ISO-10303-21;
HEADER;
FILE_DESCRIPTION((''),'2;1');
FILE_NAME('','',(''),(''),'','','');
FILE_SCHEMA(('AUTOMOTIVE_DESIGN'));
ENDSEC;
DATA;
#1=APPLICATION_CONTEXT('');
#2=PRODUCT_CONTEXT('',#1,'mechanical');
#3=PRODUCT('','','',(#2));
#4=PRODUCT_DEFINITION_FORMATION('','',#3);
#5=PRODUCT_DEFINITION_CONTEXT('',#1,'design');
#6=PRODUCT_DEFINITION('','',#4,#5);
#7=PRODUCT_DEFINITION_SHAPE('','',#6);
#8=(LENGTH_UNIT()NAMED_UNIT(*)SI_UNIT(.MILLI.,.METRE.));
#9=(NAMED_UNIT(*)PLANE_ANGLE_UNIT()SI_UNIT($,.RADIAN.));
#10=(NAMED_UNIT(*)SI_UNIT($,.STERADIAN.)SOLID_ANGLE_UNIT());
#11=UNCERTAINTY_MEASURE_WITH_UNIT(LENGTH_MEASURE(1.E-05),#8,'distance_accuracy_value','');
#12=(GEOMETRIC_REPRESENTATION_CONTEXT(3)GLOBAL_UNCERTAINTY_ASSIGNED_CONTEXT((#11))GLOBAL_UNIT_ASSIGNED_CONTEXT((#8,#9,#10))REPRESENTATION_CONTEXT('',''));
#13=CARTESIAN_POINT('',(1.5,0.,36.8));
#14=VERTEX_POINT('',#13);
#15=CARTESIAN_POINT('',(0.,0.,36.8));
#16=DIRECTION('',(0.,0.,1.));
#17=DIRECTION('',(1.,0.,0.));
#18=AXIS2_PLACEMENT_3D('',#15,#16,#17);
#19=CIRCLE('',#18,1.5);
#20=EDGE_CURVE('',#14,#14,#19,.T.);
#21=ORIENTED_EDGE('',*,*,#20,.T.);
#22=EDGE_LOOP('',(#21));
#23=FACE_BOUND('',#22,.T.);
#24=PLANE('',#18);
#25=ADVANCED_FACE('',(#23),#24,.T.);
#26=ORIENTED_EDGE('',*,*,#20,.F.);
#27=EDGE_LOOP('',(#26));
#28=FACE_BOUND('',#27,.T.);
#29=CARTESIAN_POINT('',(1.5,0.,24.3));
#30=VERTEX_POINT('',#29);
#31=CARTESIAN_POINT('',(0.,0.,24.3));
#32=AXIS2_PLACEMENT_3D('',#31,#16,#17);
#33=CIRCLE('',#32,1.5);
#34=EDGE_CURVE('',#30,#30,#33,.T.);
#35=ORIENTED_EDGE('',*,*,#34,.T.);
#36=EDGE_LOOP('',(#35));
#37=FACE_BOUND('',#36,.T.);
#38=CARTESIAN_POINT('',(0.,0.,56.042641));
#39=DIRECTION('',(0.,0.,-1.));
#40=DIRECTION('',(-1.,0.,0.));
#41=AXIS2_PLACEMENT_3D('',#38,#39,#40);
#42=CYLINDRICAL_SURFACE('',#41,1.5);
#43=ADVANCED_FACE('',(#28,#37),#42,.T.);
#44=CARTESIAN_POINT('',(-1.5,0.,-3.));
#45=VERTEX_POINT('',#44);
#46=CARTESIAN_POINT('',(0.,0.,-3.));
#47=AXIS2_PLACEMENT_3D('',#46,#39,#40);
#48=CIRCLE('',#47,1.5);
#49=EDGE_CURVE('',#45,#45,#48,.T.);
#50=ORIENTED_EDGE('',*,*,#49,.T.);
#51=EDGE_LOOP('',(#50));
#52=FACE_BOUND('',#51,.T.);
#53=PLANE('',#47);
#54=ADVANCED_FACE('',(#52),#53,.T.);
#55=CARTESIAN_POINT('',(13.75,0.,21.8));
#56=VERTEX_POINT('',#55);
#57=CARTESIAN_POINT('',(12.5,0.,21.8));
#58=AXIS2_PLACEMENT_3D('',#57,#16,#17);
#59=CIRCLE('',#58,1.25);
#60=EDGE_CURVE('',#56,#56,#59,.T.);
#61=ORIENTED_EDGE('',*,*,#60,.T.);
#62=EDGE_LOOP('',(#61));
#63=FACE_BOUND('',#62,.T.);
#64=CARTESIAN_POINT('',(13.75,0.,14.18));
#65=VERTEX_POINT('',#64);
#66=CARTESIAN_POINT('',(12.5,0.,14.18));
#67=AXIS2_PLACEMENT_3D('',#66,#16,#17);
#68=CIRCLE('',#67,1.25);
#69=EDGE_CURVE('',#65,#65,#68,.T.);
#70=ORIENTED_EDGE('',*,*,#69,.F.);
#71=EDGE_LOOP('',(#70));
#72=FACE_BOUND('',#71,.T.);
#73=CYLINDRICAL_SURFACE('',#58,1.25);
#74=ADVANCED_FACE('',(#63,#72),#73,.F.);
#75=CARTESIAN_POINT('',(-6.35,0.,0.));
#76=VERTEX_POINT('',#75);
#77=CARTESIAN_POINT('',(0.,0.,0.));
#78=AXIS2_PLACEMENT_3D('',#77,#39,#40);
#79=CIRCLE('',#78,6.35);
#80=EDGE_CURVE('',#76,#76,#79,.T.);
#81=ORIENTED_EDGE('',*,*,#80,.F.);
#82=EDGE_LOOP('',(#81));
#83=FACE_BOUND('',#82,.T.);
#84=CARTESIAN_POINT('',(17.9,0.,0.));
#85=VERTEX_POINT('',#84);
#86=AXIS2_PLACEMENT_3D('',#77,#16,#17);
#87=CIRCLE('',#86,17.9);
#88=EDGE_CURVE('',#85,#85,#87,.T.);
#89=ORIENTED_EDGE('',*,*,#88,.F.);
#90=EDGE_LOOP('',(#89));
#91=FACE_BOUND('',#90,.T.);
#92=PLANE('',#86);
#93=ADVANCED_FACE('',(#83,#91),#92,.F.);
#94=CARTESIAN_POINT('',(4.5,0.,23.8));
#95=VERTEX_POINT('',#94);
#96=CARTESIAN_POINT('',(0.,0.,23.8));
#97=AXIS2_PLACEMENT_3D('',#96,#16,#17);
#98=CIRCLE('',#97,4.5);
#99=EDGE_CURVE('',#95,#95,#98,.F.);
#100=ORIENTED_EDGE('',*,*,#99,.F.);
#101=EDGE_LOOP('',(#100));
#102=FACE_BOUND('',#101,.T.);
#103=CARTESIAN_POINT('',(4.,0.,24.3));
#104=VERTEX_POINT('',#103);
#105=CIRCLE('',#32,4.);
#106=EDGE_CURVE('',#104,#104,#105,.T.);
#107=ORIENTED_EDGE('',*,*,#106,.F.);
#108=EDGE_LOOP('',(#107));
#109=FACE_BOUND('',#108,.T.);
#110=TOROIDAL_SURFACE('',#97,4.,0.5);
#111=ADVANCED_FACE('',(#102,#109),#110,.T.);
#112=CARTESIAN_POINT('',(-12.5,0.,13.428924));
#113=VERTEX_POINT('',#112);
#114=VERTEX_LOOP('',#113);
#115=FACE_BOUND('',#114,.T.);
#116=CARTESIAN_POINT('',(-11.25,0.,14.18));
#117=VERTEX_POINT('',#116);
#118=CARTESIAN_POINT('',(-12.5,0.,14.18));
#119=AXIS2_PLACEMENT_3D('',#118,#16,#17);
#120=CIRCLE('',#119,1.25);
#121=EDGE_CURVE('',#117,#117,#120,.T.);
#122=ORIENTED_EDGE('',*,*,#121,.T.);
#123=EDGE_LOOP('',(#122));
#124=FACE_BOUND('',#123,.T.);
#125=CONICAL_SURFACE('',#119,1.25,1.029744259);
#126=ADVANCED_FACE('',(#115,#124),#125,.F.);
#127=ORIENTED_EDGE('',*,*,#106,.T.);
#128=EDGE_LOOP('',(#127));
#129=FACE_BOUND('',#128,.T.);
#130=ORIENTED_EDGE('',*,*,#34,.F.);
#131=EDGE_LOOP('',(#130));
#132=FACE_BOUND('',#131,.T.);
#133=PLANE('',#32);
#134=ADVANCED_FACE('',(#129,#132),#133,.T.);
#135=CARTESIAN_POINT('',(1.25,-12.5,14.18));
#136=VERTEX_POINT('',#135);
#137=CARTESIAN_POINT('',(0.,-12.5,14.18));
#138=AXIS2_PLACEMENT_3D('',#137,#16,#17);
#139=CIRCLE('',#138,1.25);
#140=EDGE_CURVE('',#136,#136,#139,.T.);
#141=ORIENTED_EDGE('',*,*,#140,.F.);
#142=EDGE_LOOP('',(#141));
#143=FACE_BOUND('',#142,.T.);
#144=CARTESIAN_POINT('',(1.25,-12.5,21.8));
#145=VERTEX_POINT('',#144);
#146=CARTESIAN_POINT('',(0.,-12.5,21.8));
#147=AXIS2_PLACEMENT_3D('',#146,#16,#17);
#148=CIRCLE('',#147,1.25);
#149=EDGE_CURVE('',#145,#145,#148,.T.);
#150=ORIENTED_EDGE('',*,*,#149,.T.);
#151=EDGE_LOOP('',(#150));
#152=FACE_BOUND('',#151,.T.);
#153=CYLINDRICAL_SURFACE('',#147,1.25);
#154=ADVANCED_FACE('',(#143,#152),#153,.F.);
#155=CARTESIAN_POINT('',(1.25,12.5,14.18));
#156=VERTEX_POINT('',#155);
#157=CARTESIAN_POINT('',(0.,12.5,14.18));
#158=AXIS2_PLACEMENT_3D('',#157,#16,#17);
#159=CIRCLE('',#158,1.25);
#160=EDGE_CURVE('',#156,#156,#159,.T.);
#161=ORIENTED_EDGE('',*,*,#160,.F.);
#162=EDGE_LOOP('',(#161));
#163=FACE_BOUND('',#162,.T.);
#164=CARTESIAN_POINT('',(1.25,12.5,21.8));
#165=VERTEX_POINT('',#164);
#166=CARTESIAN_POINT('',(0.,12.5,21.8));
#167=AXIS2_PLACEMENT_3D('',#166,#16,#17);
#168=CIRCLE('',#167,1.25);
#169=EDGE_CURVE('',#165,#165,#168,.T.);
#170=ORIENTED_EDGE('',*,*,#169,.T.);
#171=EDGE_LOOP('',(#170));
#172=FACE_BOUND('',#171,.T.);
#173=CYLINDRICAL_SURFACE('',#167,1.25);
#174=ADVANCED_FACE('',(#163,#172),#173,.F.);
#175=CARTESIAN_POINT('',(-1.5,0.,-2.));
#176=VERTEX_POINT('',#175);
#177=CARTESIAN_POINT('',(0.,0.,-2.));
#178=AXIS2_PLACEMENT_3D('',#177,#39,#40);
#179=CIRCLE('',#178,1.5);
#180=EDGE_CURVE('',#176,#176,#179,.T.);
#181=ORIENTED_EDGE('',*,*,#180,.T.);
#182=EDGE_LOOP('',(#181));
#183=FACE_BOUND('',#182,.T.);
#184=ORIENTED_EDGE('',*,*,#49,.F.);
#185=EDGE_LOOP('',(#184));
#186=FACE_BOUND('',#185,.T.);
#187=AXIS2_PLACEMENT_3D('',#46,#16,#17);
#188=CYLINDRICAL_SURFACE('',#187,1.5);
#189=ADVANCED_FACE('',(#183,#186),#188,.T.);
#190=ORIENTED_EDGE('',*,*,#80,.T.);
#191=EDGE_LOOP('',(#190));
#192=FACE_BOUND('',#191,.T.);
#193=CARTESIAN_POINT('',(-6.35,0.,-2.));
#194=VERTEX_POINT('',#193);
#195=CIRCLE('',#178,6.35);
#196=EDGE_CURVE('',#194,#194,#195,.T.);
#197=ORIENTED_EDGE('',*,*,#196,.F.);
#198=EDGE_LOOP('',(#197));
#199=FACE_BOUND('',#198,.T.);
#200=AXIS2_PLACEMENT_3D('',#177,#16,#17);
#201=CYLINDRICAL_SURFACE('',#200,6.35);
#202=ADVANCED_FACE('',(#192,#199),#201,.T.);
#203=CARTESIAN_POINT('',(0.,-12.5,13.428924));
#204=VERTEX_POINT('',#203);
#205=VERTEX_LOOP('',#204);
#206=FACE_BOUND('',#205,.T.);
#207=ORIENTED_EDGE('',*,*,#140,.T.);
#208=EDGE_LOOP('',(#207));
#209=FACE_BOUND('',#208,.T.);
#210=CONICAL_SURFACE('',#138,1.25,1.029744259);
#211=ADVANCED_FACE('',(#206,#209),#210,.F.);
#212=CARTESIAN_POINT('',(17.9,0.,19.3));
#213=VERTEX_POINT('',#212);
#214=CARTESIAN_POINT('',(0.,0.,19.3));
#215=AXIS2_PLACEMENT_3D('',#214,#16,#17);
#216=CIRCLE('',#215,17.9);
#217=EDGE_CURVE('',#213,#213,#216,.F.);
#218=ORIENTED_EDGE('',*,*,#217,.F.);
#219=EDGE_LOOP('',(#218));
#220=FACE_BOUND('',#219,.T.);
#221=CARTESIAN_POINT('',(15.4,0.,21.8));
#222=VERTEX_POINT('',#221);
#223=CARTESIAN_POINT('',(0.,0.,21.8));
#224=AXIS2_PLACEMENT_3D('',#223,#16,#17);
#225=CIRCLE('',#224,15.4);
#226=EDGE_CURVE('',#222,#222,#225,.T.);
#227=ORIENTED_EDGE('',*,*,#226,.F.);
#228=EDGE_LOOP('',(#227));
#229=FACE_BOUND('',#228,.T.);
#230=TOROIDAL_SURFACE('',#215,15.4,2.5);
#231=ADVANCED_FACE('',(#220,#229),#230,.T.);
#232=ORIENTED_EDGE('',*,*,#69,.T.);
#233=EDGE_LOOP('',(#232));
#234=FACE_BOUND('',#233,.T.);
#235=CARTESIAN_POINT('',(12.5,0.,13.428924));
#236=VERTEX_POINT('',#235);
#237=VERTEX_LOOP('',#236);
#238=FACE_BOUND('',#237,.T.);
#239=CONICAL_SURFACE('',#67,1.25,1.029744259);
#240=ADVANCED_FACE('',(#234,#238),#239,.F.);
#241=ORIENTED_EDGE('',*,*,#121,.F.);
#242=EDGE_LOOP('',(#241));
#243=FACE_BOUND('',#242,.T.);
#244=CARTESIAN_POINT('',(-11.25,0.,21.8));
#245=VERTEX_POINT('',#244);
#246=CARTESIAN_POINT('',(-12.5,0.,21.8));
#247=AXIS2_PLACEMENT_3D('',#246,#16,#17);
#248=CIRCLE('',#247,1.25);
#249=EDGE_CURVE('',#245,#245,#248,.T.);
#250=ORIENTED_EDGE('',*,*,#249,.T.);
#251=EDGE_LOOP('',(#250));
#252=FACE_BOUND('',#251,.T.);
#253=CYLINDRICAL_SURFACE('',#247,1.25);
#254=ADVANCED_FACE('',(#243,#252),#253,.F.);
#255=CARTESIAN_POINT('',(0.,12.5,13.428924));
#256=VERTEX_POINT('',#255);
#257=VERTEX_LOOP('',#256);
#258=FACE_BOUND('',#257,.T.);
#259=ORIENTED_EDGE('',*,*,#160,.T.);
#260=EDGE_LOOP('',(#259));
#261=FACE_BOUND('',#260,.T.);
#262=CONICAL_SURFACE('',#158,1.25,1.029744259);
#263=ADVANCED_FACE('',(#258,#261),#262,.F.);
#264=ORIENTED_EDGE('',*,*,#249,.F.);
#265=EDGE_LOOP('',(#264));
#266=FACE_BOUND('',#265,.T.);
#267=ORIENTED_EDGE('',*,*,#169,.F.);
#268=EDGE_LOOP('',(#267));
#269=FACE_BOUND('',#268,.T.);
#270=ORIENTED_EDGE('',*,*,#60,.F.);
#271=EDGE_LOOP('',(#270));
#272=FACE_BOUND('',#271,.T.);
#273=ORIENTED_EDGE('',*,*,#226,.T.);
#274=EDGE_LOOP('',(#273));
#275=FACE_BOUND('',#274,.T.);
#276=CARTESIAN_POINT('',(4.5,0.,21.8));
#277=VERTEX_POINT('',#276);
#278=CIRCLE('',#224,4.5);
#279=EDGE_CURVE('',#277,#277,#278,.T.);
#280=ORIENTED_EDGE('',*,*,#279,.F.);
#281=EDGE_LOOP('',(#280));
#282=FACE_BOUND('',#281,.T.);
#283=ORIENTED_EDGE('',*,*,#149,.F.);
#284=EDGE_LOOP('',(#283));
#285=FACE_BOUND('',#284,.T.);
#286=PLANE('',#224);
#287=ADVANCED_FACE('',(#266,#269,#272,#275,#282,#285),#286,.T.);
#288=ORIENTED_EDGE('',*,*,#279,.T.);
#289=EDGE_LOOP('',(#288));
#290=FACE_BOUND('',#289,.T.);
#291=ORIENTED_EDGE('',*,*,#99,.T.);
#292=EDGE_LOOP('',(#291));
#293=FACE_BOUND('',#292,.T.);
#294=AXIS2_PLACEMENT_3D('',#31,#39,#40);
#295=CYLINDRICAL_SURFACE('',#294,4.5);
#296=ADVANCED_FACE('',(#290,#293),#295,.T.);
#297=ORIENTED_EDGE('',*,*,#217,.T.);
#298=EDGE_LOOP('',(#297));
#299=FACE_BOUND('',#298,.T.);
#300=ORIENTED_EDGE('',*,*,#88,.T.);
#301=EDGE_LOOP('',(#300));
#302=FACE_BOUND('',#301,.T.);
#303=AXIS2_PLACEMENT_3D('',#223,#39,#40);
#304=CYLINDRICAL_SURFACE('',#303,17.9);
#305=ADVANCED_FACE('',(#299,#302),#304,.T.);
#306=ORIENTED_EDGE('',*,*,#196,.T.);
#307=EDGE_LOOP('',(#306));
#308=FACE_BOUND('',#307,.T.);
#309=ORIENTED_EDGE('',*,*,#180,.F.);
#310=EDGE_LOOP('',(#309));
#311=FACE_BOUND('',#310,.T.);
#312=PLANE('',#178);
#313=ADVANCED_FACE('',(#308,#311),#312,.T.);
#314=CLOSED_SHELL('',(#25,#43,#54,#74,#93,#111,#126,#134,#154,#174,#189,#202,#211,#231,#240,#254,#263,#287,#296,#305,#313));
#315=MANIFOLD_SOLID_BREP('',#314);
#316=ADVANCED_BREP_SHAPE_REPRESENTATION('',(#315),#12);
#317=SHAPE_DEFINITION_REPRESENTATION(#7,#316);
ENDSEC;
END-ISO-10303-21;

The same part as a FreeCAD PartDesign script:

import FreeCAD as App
import Part
import Sketcher

V = App.Vector


def edges_at(feature, points):
    """Names of the edges that pass closest to the given points."""
    edges = feature.Shape.Edges
    near = lambda p: min(range(len(edges)), key=lambda i: edges[i].distToShape(Part.Vertex(*p))[0])
    return sorted({f"Edge{near(p) + 1}" for p in points})

doc = App.newDocument("Part")
params = doc.addObject("Spreadsheet::Sheet", "Params")
for row, (alias, value) in enumerate([
    ("sketch1_diameter", "35.8 mm"),
    ("pad1_length", "21.8 mm"),
    ("fillet_radius", "2.5 mm"),
    ("sketch2_diameter", "9 mm"),
    ("pad2_length", "2.5 mm"),
    ("fillet2_radius", "0.5 mm"),
    ("sketch3_diameter", "2.5 mm"),
    ("hole_diameter", "2.5 mm"),
    ("hole_depth", "7.62 mm"),
    ("sketch4_diameter", "3 mm"),
    ("pad3_length", "12.5 mm"),
    ("sketch5_diameter", "12.7 mm"),
    ("pad4_length", "2 mm"),
    ("sketch6_diameter", "3 mm"),
    ("pad5_length", "1 mm"),
], start=1):
    params.set(f"A{row}", alias)
    params.set(f"B{row}", "=" + value)
    params.setAlias(f"B{row}", alias)

body = doc.addObject("PartDesign::Body", "Body")

# Sketch on XY plane
sketch1 = body.newObject("Sketcher::SketchObject", "Sketch")
sketch1.AttachmentSupport = (doc.getObject("XY_Plane"), [""])
sketch1.MapMode = "FlatFace"
sketch1.addGeometry(Part.Circle(V(0, 0, 0), V(0, 0, 1), 18), False)
sketch1.addConstraint([
    Sketcher.Constraint("Coincident", 0, 3, -1, 1),
    Sketcher.Constraint("Diameter", 0, 35.8),
])
sketch1.setExpression("Constraints[1]", "Params.sketch1_diameter")
pad1 = body.newObject("PartDesign::Pad", "Pad")
pad1.Profile = sketch1
pad1.setExpression("Length", "Params.pad1_length")
doc.recompute()

fillet = body.newObject("PartDesign::Fillet", "Fillet")
fillet.Base = (pad1, edges_at(pad1, [(-17.9, 0, 21.8)]))
fillet.setExpression("Radius", "Params.fillet_radius")

# Sketch on XY plane
sketch2 = body.newObject("Sketcher::SketchObject", "Sketch001")
sketch2.AttachmentSupport = (doc.getObject("XY_Plane"), [""])
sketch2.MapMode = "FlatFace"
sketch2.AttachmentOffset = App.Placement(V(0, 0, 21.8), App.Rotation())
sketch2.addGeometry(Part.Circle(V(0, 0, 0), V(0, 0, 1), 4.5), False)
sketch2.addConstraint([
    Sketcher.Constraint("Coincident", 0, 3, -1, 1),
    Sketcher.Constraint("Diameter", 0, 9.0),
])
sketch2.setExpression("Constraints[1]", "Params.sketch2_diameter")
pad2 = body.newObject("PartDesign::Pad", "Pad001")
pad2.Profile = sketch2
pad2.setExpression("Length", "Params.pad2_length")
doc.recompute()

fillet2 = body.newObject("PartDesign::Fillet", "Fillet001")
fillet2.Base = (pad2, edges_at(pad2, [(-4.5, 0, 24.3)]))
fillet2.setExpression("Radius", "Params.fillet2_radius")

# Sketch on XY plane
sketch3 = body.newObject("Sketcher::SketchObject", "Sketch002")
sketch3.AttachmentSupport = (doc.getObject("XY_Plane"), [""])
sketch3.MapMode = "FlatFace"
sketch3.AttachmentOffset = App.Placement(V(0, 0, 21.8), App.Rotation())
sketch3.addGeometry([
    Part.Circle(V(0, 12.5, 0), V(0, 0, 1), 1.2),
    Part.Circle(V(0, -12.5, 0), V(0, 0, 1), 1.2),
    Part.Circle(V(12.5, 0, 0), V(0, 0, 1), 1.2),
    Part.Circle(V(-12.5, 0, 0), V(0, 0, 1), 1.2),
], False)
sketch3.addConstraint([
    Sketcher.Constraint("Equal", 0, 1),
    Sketcher.Constraint("Equal", 1, 2),
    Sketcher.Constraint("Equal", 2, 3),
    Sketcher.Constraint("Symmetric", 0, 3, 1, 3, -1, 1),
    Sketcher.Constraint("Symmetric", 2, 3, 3, 3, -1, 1),
    Sketcher.Constraint("PointOnObject", 0, 3, -2),
    Sketcher.Constraint("PointOnObject", 2, 3, -1),
    Sketcher.Constraint("Diameter", 0, 2.5),
    Sketcher.Constraint("DistanceY", 1, 3, 0, 3, 25.0),
    Sketcher.Constraint("DistanceX", 3, 3, 2, 3, 25.0),
])
sketch3.setExpression("Constraints[7]", "Params.sketch3_diameter")
doc.recompute()
hole = body.newObject("PartDesign::Hole", "Hole")
hole.Profile = sketch3
hole.ThreadType = "None"
hole.setExpression("Diameter", "Params.hole_diameter")
hole.DepthType = "Dimension"
hole.setExpression("Depth", "Params.hole_depth")
hole.DrillPoint = "Angled"
hole.DrillPointAngle = 118

# Sketch on XY plane
sketch4 = body.newObject("Sketcher::SketchObject", "Sketch003")
sketch4.AttachmentSupport = (doc.getObject("XY_Plane"), [""])
sketch4.MapMode = "FlatFace"
sketch4.AttachmentOffset = App.Placement(V(0, 0, 24.3), App.Rotation())
sketch4.addGeometry(Part.Circle(V(0, 0, 0), V(0, 0, 1), 1.5), False)
sketch4.addConstraint([
    Sketcher.Constraint("Coincident", 0, 3, -1, 1),
    Sketcher.Constraint("Diameter", 0, 3.0),
])
sketch4.setExpression("Constraints[1]", "Params.sketch4_diameter")
pad3 = body.newObject("PartDesign::Pad", "Pad002")
pad3.Profile = sketch4
pad3.setExpression("Length", "Params.pad3_length")

# Sketch on XY plane
sketch5 = body.newObject("Sketcher::SketchObject", "Sketch004")
sketch5.AttachmentSupport = (doc.getObject("XY_Plane"), [""])
sketch5.MapMode = "FlatFace"
sketch5.addGeometry(Part.Circle(V(0, 0, 0), V(0, 0, 1), 6), False)
sketch5.addConstraint([
    Sketcher.Constraint("Coincident", 0, 3, -1, 1),
    Sketcher.Constraint("Diameter", 0, 12.7),
])
sketch5.setExpression("Constraints[1]", "Params.sketch5_diameter")
pad4 = body.newObject("PartDesign::Pad", "Pad003")
pad4.Profile = sketch5
pad4.setExpression("Length", "Params.pad4_length")
pad4.Reversed = True

# Sketch on XY plane
sketch6 = body.newObject("Sketcher::SketchObject", "Sketch005")
sketch6.AttachmentSupport = (doc.getObject("XY_Plane"), [""])
sketch6.MapMode = "FlatFace"
sketch6.AttachmentOffset = App.Placement(V(0, 0, -3), App.Rotation())
sketch6.addGeometry(Part.Circle(V(0, 0, 0), V(0, 0, 1), 1.5), False)
sketch6.addConstraint([
    Sketcher.Constraint("Coincident", 0, 3, -1, 1),
    Sketcher.Constraint("Diameter", 0, 3.0),
])
sketch6.setExpression("Constraints[1]", "Params.sketch6_diameter")
pad5 = body.newObject("PartDesign::Pad", "Pad004")
pad5.Profile = sketch6
pad5.setExpression("Length", "Params.pad5_length")

doc.recompute()
